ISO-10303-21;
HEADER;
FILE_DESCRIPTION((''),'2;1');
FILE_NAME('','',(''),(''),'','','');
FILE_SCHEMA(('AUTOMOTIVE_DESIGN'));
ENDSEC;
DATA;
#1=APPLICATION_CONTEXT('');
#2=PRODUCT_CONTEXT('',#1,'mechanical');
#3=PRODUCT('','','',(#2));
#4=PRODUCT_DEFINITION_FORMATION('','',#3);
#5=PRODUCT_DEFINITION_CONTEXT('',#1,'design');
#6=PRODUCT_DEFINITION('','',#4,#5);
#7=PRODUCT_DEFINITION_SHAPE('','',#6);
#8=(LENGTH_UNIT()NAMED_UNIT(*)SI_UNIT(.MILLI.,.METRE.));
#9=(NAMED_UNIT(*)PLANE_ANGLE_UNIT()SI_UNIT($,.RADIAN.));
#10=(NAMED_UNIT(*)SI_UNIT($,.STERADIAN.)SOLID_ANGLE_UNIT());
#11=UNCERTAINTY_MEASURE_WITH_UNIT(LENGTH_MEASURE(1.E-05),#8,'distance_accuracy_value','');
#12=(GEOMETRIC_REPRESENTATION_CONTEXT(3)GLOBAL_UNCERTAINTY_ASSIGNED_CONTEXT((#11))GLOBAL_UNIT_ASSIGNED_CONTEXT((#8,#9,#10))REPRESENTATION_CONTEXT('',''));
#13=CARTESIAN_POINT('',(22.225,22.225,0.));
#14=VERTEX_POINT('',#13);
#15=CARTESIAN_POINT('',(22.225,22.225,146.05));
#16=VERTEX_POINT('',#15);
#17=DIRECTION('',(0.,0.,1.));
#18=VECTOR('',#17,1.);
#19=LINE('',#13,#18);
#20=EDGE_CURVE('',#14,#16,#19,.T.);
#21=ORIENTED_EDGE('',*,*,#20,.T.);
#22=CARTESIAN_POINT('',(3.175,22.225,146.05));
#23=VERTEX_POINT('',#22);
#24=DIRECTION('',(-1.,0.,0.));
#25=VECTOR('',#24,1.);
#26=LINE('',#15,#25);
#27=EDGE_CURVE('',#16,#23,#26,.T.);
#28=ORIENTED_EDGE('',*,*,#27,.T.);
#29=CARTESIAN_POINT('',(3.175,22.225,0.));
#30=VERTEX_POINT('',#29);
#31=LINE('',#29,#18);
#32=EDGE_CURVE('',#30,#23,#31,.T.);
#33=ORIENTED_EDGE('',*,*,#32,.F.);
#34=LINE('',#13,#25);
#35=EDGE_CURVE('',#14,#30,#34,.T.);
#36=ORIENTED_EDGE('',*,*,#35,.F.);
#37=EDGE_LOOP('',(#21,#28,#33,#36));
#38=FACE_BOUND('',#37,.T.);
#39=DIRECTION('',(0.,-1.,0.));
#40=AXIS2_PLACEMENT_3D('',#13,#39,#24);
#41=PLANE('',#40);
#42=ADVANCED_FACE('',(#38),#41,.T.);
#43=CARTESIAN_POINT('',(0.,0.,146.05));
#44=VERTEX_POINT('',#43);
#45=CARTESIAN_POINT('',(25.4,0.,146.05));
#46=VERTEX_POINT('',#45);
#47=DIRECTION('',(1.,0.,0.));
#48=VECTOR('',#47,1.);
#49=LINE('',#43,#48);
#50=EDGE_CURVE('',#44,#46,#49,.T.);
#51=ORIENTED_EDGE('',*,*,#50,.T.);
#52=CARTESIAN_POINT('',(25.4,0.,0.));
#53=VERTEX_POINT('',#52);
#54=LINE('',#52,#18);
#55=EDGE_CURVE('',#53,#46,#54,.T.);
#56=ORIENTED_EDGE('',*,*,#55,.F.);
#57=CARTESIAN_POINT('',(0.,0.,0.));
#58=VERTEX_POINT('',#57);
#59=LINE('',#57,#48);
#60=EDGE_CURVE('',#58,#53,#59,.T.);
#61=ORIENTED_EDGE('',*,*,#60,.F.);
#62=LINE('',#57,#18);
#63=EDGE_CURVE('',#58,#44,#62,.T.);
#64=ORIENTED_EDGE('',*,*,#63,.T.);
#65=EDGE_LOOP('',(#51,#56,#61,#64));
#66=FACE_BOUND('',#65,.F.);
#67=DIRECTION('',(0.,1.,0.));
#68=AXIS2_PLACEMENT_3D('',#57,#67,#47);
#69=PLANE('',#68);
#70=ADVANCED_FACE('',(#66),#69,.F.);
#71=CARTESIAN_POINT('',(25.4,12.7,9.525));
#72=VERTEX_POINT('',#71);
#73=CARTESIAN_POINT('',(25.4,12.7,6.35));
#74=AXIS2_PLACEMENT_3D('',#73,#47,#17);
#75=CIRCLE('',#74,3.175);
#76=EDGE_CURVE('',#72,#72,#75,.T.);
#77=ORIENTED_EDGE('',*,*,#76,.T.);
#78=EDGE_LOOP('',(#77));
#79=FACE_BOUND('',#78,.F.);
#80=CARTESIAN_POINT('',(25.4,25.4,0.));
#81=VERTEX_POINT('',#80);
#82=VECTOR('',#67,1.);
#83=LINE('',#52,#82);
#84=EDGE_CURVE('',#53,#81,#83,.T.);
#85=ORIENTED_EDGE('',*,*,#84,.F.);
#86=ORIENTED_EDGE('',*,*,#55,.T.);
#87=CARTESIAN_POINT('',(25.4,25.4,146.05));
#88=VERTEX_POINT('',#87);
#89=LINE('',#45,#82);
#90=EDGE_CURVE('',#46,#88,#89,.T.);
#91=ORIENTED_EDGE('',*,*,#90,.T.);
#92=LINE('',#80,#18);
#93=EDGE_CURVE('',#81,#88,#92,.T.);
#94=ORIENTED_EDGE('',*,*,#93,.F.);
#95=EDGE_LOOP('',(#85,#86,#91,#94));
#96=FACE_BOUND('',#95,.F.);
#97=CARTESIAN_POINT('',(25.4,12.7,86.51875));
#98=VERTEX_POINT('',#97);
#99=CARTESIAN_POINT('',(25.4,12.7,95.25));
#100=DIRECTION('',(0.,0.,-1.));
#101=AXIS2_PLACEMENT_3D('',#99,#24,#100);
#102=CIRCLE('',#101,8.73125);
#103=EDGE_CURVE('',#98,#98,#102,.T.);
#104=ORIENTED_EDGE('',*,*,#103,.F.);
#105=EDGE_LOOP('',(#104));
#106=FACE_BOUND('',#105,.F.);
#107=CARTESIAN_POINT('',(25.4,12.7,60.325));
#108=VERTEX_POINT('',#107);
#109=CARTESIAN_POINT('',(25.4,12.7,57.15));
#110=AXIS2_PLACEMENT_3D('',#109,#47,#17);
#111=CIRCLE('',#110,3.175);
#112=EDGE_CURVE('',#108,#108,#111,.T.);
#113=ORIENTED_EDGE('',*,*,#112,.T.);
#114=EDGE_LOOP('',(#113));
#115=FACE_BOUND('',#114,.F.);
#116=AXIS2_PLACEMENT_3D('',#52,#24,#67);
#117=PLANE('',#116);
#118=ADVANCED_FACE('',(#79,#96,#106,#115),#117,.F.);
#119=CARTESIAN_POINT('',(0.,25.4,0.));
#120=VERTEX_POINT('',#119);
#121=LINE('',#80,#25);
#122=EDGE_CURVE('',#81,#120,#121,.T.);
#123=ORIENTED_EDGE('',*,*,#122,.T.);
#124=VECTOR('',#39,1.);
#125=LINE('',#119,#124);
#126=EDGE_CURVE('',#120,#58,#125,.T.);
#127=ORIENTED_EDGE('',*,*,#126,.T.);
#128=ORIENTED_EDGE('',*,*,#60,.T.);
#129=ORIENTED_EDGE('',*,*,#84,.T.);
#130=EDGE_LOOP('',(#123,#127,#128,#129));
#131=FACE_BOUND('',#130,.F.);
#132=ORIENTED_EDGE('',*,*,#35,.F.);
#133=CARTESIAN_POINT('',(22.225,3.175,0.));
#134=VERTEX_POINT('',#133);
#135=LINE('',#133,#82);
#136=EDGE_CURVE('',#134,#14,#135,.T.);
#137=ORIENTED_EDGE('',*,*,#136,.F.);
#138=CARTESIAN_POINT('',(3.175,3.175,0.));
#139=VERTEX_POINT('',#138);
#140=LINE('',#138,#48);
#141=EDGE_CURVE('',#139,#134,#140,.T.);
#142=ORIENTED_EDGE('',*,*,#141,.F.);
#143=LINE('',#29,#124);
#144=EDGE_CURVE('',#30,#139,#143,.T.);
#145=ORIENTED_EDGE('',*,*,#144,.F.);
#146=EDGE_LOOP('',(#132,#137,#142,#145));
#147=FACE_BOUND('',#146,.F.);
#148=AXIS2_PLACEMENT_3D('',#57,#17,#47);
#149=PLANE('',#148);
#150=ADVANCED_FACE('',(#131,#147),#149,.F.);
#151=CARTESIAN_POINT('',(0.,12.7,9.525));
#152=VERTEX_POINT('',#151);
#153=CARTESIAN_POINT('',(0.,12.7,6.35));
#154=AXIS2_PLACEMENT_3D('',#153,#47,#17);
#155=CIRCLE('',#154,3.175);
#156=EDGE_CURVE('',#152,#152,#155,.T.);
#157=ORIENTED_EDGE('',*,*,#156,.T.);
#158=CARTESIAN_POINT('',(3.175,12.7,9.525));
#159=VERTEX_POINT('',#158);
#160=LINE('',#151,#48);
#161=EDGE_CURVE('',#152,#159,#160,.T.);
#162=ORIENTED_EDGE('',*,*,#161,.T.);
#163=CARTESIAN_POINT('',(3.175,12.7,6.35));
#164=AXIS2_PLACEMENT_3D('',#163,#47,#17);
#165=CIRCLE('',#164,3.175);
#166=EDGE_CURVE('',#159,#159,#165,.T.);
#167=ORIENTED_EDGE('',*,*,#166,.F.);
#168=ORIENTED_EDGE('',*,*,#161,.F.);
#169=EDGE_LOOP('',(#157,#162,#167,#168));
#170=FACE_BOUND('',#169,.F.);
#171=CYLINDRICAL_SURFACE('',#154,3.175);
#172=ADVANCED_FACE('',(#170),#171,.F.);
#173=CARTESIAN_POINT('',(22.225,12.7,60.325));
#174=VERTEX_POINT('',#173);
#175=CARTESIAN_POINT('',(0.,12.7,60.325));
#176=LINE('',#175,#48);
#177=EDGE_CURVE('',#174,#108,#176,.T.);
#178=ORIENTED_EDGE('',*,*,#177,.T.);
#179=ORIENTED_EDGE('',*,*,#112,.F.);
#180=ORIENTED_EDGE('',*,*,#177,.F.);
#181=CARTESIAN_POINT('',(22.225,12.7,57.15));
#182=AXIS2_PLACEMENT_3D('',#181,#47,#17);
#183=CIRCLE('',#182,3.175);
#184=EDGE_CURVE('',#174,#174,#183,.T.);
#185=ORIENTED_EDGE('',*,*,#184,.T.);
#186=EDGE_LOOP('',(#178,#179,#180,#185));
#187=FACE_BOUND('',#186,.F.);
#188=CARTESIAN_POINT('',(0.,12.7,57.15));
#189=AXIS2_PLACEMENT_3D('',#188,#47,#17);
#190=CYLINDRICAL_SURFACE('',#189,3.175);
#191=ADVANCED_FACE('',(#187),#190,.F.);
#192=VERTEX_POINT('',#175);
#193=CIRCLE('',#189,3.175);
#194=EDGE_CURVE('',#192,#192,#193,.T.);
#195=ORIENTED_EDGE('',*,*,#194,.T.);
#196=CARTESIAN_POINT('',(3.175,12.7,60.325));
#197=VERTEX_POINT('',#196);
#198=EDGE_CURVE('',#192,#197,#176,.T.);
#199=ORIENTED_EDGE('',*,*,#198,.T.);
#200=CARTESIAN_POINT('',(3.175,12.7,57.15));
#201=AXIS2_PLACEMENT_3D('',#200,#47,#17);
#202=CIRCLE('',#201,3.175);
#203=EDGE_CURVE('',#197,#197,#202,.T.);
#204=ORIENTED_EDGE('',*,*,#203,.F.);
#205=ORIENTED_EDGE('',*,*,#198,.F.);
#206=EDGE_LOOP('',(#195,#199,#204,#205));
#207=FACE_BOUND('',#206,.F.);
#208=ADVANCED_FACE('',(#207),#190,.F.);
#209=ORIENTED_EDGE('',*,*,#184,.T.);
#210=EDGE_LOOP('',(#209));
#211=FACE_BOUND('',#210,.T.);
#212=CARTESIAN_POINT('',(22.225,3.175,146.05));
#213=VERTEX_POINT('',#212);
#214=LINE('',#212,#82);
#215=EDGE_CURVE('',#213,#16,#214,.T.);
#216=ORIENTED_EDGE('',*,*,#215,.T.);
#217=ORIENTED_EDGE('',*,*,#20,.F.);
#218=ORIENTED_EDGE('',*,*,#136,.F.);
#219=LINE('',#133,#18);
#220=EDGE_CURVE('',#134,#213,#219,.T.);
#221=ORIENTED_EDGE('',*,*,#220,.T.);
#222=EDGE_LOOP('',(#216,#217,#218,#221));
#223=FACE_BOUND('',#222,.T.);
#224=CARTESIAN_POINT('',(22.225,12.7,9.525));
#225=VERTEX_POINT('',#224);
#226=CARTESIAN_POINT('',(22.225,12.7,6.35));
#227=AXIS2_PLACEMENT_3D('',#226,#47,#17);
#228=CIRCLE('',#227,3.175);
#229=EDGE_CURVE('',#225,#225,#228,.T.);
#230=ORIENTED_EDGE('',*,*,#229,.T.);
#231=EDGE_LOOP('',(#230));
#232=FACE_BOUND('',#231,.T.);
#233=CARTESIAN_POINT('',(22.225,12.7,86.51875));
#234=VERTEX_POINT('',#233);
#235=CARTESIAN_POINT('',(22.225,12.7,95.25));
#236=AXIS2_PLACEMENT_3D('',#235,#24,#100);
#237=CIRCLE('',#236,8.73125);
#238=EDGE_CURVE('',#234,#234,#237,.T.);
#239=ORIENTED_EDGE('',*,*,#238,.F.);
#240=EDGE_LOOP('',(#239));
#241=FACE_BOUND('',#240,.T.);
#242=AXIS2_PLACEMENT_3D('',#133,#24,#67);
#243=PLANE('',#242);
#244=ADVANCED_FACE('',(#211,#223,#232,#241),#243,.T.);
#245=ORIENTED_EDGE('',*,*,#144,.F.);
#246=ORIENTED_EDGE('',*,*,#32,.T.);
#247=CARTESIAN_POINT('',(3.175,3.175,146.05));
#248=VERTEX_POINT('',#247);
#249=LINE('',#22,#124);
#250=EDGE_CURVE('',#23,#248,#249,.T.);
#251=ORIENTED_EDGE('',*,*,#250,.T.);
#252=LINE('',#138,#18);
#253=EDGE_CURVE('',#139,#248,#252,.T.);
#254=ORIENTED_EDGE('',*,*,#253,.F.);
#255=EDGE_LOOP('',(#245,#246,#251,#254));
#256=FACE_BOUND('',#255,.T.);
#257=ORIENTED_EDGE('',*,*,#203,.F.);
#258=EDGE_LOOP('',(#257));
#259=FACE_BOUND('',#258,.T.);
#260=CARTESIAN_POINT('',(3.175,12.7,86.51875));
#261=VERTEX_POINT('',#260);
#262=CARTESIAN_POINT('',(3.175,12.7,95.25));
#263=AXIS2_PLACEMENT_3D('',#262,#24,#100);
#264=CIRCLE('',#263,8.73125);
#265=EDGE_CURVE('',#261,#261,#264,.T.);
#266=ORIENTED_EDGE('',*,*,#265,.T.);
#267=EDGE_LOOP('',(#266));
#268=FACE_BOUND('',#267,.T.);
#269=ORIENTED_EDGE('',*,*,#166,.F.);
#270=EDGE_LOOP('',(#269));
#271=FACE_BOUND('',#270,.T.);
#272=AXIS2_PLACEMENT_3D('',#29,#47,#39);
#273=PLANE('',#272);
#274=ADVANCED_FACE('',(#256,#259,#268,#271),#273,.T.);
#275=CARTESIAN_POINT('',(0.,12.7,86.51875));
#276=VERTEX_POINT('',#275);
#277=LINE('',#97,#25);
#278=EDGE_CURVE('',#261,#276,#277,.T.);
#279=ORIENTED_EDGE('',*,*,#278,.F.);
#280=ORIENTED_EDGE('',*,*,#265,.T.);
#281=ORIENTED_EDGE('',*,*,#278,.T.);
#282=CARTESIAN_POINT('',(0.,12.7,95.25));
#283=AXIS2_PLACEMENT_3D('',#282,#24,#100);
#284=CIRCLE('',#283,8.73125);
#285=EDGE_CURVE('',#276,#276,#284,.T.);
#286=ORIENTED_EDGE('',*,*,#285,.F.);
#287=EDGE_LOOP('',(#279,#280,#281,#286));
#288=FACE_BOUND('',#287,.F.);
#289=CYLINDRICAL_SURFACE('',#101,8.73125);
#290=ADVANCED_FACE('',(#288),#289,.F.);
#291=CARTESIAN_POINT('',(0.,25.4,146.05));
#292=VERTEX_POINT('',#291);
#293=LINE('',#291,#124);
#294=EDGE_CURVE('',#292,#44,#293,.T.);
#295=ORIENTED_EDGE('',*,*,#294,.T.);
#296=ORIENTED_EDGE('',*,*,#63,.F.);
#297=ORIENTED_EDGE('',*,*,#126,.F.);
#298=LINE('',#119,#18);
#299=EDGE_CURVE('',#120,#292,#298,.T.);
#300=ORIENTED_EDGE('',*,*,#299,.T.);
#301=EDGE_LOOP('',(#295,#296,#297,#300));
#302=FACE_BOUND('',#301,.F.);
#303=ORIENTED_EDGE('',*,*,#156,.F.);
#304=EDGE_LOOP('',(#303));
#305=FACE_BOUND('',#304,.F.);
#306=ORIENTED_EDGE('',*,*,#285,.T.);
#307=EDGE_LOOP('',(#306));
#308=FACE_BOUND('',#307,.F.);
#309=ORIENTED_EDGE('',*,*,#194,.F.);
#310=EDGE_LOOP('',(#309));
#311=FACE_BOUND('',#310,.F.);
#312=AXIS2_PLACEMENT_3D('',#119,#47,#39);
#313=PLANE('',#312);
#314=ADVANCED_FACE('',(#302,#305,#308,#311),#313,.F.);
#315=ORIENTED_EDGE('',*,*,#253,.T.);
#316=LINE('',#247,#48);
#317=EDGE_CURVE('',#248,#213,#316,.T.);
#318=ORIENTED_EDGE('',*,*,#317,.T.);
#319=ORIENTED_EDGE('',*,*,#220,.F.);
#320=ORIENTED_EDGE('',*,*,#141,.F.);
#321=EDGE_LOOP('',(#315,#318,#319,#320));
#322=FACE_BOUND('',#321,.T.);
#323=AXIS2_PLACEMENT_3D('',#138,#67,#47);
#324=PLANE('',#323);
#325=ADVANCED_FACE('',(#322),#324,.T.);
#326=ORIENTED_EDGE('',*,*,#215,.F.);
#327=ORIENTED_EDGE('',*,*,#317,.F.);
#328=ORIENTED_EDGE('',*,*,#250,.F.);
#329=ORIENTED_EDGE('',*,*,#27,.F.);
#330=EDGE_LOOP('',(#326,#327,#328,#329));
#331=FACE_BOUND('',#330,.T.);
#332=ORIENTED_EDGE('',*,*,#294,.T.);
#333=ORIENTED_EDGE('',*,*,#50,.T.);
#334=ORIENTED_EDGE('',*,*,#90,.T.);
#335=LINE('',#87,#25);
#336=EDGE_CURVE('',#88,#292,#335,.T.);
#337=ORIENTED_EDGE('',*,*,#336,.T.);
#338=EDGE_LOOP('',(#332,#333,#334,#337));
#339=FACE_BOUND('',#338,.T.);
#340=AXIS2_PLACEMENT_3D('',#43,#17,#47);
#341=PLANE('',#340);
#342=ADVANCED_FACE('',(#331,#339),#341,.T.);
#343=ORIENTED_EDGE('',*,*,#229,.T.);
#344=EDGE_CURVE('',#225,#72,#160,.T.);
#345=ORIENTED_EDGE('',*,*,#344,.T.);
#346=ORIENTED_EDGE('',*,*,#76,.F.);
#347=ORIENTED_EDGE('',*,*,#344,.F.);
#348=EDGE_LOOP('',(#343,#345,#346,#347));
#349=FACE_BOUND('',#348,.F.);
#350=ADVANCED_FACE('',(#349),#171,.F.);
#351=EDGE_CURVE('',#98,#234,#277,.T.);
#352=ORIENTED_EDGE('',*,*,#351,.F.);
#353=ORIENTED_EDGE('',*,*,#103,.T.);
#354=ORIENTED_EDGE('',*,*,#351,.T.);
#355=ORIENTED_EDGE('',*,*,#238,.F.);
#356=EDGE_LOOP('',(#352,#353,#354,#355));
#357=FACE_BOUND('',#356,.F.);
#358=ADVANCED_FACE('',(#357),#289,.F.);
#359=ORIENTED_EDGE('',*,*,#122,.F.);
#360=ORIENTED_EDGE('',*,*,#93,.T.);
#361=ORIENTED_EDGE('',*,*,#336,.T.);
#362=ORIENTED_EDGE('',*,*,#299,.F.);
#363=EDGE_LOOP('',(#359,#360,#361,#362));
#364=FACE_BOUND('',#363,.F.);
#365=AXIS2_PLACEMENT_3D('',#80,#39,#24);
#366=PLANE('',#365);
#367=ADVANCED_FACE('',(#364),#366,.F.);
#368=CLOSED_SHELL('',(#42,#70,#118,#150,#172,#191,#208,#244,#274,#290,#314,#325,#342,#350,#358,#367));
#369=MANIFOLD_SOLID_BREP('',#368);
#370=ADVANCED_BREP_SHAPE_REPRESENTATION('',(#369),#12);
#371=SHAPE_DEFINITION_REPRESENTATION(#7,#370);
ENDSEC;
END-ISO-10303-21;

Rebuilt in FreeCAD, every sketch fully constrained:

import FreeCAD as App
import Part
import Sketcher
Q = App.Units.Quantity


def add_polygon(sketch, points):
    """Adds a closed chain of lines whose ends are joined by coincident constraints."""
    first, n = sketch.GeometryCount, len(points)
    for a, b in zip(points, points[1:] + points[:1]):
        sketch.addGeometry(Part.LineSegment(App.Vector(*a, 0), App.Vector(*b, 0)), False)
    for i in range(n):
        sketch.addConstraint(Sketcher.Constraint("Coincident", first + i, 2, first + (i + 1) % n, 1))

doc = App.newDocument("Part")
body = doc.addObject("PartDesign::Body", "Body")

sketch1 = body.newObject("Sketcher::SketchObject", "Sketch")
sketch1.AttachmentSupport = (doc.getObject("XY_Plane"), [""])
sketch1.MapMode = "FlatFace"
add_polygon(sketch1, [(0, 25), (0, 0), (25, 0), (25, 25)])
add_polygon(sketch1, [(22, 3), (3, 3), (3, 22), (22, 22)])
sketch1.addConstraint([
    Sketcher.Constraint("Vertical", 0),
    Sketcher.Constraint("Horizontal", 1),
    Sketcher.Constraint("Vertical", 2),
    Sketcher.Constraint("Horizontal", 3),
    Sketcher.Constraint("Horizontal", 4),
    Sketcher.Constraint("Vertical", 5),
    Sketcher.Constraint("Horizontal", 6),
    Sketcher.Constraint("Vertical", 7),
    Sketcher.Constraint("Coincident", 0, 2, -1, 1),
    Sketcher.Constraint("Equal", 3, 0),
    Sketcher.Constraint("Equal", 6, 5),
    Sketcher.Constraint("DistanceX", 1, 1, 1, 2, Q("1 in")),
    Sketcher.Constraint("DistanceX", 4, 2, 4, 1, Q("0.75 in")),
    Sketcher.Constraint("DistanceX", -1, 1, 4, 2, Q("0.125 in")),
    Sketcher.Constraint("DistanceY", -1, 1, 4, 2, Q("0.125 in")),
])
pad1 = body.newObject("PartDesign::Pad", "Pad")
pad1.Profile = sketch1
pad1.Length = Q("5.75 in")

sketch2 = body.newObject("Sketcher::SketchObject", "Sketch001")
sketch2.AttachmentSupport = (doc.getObject("YZ_Plane"), [""])
sketch2.MapMode = "FlatFace"
sketch2.addGeometry([
    Part.Circle(App.Vector(12.7, 6.3, 0), App.Vector(0, 0, 1), 3.2),
    Part.Circle(App.Vector(12.7, 57.1, 0), App.Vector(0, 0, 1), 3.2),
], False)
sketch2.addConstraint([
    Sketcher.Constraint("Equal", 0, 1),
    Sketcher.Constraint("Vertical", 0, 3, 1, 3),
    Sketcher.Constraint("Diameter", 0, Q("0.25 in")),
    Sketcher.Constraint("DistanceY", 0, 3, 1, 3, Q("2 in")),
    Sketcher.Constraint("DistanceX", -1, 1, 0, 3, Q("0.5 in")),
    Sketcher.Constraint("DistanceY", -1, 1, 0, 3, Q("0.25 in")),
])
doc.recompute()
hole = body.newObject("PartDesign::Hole", "Hole")
hole.Profile = sketch2
hole.ThreadType = "None"
hole.Diameter = Q("0.25 in")
hole.DepthType = "ThroughAll"
hole.Reversed = True

sketch3 = body.newObject("Sketcher::SketchObject", "Sketch002")
sketch3.AttachmentSupport = (doc.getObject("YZ_Plane"), [""])
sketch3.MapMode = "FlatFace"
sketch3.AttachmentOffset = App.Placement(App.Vector(0, 0, 1 * 25.4), App.Rotation())
sketch3.addGeometry(Part.Circle(App.Vector(13, 95, 0), App.Vector(0, 0, 1), 9), False)
sketch3.addConstraint([
    Sketcher.Constraint("Diameter", 0, Q("0.6875 in")),
    Sketcher.Constraint("DistanceX", -1, 1, 0, 3, Q("0.5 in")),
    Sketcher.Constraint("DistanceY", -1, 1, 0, 3, Q("3.75 in")),
])
doc.recompute()
hole2 = body.newObject("PartDesign::Hole", "Hole001")
hole2.Profile = sketch3
hole2.ThreadType = "None"
hole2.Diameter = Q("0.6875 in")
hole2.DepthType = "ThroughAll"

doc.recompute()
